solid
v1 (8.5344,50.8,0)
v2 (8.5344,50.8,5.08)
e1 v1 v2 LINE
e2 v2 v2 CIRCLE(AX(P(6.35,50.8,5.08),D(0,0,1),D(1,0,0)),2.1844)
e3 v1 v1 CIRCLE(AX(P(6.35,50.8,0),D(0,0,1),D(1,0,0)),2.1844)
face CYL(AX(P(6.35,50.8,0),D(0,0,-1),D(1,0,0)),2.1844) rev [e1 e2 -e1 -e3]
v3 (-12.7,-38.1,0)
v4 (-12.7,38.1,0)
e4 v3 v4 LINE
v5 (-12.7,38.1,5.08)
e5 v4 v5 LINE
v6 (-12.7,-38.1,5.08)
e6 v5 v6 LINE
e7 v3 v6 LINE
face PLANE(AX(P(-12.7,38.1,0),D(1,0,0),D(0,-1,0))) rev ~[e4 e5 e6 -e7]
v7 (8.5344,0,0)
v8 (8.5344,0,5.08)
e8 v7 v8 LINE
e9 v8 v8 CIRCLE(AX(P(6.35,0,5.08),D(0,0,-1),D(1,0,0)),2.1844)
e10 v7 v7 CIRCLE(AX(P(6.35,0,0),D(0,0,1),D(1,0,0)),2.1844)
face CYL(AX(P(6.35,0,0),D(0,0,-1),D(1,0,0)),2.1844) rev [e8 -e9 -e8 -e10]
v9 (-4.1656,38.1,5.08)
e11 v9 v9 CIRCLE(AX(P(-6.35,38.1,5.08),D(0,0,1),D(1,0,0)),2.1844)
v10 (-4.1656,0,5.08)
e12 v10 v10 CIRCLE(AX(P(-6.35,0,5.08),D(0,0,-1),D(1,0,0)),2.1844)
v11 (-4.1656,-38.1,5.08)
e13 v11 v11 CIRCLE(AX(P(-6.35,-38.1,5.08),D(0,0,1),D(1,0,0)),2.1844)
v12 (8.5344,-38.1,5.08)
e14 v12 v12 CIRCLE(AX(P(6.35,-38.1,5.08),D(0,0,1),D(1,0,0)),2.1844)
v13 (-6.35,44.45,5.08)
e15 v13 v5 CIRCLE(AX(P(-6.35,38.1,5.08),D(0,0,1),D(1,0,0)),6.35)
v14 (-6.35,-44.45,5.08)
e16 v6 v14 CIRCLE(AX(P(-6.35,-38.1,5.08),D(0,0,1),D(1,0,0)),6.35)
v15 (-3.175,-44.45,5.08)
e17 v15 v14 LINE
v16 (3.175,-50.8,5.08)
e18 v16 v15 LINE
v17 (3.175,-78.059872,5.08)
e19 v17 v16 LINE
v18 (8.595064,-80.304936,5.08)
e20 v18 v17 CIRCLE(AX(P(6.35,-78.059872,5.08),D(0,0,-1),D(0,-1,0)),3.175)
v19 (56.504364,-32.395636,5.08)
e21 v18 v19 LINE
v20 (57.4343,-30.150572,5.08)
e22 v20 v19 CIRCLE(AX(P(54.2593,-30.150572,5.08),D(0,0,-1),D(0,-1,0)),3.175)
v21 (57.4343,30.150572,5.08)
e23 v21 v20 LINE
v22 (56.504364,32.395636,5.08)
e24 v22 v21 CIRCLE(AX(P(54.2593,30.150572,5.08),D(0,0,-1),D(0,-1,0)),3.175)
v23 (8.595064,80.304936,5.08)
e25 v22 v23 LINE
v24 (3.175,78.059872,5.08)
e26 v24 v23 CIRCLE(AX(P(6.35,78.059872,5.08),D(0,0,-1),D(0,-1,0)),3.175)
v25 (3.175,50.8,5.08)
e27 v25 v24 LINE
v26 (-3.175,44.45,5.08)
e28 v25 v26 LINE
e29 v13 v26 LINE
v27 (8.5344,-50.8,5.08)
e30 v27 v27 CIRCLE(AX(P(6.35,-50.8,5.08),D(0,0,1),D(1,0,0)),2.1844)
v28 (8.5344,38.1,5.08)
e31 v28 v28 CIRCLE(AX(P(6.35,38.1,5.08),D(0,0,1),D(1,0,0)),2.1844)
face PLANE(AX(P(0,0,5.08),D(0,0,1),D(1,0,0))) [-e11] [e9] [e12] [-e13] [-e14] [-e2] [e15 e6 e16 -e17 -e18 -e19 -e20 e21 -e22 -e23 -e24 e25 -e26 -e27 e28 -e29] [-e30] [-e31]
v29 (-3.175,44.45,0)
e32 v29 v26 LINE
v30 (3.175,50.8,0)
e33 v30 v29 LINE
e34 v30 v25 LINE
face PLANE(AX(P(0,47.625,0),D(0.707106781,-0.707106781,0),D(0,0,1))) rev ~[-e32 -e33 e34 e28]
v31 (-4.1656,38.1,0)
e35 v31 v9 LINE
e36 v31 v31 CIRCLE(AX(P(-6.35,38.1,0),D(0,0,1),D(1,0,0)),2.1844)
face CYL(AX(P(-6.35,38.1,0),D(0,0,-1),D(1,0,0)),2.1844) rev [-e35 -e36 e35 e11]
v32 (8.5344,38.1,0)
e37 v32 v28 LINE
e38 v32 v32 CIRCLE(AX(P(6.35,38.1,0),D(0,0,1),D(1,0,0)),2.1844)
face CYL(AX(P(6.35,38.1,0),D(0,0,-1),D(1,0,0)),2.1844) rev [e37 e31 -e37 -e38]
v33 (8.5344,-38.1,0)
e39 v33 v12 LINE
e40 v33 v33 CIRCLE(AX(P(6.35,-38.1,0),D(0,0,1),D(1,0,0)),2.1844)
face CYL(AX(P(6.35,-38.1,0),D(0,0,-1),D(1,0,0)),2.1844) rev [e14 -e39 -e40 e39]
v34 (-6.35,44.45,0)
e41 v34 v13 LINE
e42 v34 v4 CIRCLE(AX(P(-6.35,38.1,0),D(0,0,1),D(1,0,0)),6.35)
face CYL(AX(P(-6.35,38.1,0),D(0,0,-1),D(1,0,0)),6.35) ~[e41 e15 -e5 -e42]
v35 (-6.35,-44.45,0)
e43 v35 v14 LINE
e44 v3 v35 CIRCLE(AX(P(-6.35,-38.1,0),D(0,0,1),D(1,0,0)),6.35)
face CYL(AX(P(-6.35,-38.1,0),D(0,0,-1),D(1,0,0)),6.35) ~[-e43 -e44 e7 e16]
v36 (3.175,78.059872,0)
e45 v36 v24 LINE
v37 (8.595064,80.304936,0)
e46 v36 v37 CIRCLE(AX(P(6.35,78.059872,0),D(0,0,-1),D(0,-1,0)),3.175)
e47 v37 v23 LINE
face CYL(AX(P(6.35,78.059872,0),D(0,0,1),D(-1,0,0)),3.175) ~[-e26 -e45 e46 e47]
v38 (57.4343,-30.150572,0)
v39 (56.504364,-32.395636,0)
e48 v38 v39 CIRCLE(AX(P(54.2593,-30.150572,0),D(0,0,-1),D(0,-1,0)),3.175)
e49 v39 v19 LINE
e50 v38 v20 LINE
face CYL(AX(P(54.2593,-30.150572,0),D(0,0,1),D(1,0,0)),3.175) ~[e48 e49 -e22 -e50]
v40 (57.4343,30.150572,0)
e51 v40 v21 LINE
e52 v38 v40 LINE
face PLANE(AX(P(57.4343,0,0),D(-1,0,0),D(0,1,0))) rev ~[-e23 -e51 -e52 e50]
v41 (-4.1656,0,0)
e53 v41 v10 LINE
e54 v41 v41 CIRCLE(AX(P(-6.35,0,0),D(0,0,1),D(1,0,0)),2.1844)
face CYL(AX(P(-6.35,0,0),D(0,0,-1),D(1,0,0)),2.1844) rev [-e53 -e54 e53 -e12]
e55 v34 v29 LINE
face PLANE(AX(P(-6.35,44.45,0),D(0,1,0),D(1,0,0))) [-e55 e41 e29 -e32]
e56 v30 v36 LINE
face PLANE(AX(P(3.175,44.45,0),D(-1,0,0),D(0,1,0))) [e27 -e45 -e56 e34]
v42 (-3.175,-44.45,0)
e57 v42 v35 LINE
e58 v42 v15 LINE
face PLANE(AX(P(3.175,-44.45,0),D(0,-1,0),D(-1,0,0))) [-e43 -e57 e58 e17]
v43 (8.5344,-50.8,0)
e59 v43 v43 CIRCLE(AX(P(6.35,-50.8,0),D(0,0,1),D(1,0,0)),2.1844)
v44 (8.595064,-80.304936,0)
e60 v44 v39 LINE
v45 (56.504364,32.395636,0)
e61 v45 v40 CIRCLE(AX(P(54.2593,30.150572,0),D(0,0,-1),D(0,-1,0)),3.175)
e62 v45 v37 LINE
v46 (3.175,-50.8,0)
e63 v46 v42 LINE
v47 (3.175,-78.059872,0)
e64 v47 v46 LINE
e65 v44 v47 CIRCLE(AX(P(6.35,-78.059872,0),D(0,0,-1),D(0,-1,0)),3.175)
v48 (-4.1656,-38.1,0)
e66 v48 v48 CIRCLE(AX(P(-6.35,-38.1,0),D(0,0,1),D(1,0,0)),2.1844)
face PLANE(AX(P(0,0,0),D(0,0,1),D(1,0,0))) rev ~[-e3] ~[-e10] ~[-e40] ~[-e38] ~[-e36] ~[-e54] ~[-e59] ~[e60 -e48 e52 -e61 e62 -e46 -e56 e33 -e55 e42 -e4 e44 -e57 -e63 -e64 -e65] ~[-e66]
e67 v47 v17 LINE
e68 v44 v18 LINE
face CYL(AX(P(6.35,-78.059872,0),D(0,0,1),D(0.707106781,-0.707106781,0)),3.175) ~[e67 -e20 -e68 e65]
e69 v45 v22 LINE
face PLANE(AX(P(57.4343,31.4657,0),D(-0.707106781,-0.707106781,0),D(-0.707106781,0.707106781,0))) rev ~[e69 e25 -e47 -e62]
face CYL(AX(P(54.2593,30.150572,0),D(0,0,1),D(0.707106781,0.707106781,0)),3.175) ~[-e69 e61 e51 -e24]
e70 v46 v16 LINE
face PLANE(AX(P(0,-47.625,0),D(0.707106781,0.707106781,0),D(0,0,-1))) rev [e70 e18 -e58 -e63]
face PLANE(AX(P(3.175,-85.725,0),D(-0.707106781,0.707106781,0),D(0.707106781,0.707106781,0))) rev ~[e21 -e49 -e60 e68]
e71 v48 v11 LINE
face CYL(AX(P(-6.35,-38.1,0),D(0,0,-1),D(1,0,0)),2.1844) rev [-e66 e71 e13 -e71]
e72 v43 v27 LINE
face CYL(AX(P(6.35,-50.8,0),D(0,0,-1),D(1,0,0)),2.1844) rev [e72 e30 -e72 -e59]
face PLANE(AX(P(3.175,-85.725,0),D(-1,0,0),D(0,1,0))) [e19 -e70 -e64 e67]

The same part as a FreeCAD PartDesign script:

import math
import FreeCAD as App
import Part
import Sketcher
Q = App.Units.Quantity


def edges_at(feature, points):
    """Names of the edges that pass closest to the given points."""
    edges = feature.Shape.Edges
    near = lambda p: min(range(len(edges)), key=lambda i: edges[i].distToShape(Part.Vertex(*p))[0])
    return sorted({f"Edge{near(p) + 1}" for p in points})

doc = App.newDocument("Part")
params = doc.addObject("Spreadsheet::Sheet", "Params")
for row, (alias, value) in enumerate([
    ("sketch1_radius", "0.25 in"),
    ("sketch1_height", "3 in"),
    ("sketch1_diameter", "0.172 in"),
    ("sketch1_height2", "1.625 in"),
    ("pad1_length", "0.2 in"),
    ("chamfer_size", "0.25 in"),
    ("fillet_radius", "0.125 in"),
], start=1):
    params.set(f"A{row}", alias)
    params.set(f"B{row}", "=" + value)
    params.setAlias(f"B{row}", alias)

body = doc.addObject("PartDesign::Body", "Body")

# Sketch on XY plane
sketch1 = doc.addObject("Sketcher::SketchObject", "Sketch")
body.addObject(sketch1)
sketch1.AttachmentSupport = (doc.XY_Plane, [""])
sketch1.MapMode = "FlatFace"
sketch1.addGeometry(Part.LineSegment(App.Vector(57.4343, 31.4657, 0), App.Vector(3.175, 85.725, 0)), False)
sketch1.addGeometry(Part.LineSegment(App.Vector(3.175, 85.725, 0), App.Vector(3.175, 44.45, 0)), False)
sketch1.addGeometry(Part.LineSegment(App.Vector(3.175, 44.45, 0), App.Vector(-6.35, 44.45, 0)), False)
sketch1.addGeometry(Part.ArcOfCircle(Part.Circle(App.Vector(-6.35, 38.1, 0), App.Vector(0, 0, 1), 6.35), math.radians(90), math.radians(180)), False)
sketch1.addGeometry(Part.LineSegment(App.Vector(-12.7, 38.1, 0), App.Vector(-12.7, -38.1, 0)), False)
sketch1.addGeometry(Part.ArcOfCircle(Part.Circle(App.Vector(-6.35, -38.1, 0), App.Vector(0, 0, 1), 6.35), math.radians(180), math.radians(270)), False)
sketch1.addGeometry(Part.LineSegment(App.Vector(-6.35, -44.45, 0), App.Vector(3.175, -44.45, 0)), False)
sketch1.addGeometry(Part.LineSegment(App.Vector(3.175, -44.45, 0), App.Vector(3.175, -85.725, 0)), False)
sketch1.addGeometry(Part.LineSegment(App.Vector(3.175, -85.725, 0), App.Vector(57.4343, -31.4657, 0)), False)
sketch1.addGeometry(Part.LineSegment(App.Vector(57.4343, -31.4657, 0), App.Vector(57.4343, 31.4657, 0)), False)
sketch1.addGeometry(Part.Circle(App.Vector(6.35, 0, 0), App.Vector(0, 0, 1), 2.1844), False)
sketch1.addGeometry(Part.Circle(App.Vector(-6.35, 0, 0), App.Vector(0, 0, 1), 2.1844), False)
sketch1.addGeometry(Part.Circle(App.Vector(6.35, 38.1, 0), App.Vector(0, 0, 1), 2.1844), False)
sketch1.addGeometry(Part.Circle(App.Vector(6.35, 50.8, 0), App.Vector(0, 0, 1), 2.1844), False)
sketch1.addGeometry(Part.Circle(App.Vector(6.35, -38.1, 0), App.Vector(0, 0, 1), 2.1844), False)
sketch1.addGeometry(Part.Circle(App.Vector(6.35, -50.8, 0), App.Vector(0, 0, 1), 2.1844), False)
sketch1.addGeometry(Part.Circle(App.Vector(-6.35, 38.1, 0), App.Vector(0, 0, 1), 2.1844), False)
sketch1.addGeometry(Part.Circle(App.Vector(-6.35, -38.1, 0), App.Vector(0, 0, 1), 2.1844), False)
sketch1.addConstraint(Sketcher.Constraint("Coincident", 0, 2, 1, 1))
sketch1.addConstraint(Sketcher.Constraint("Coincident", 1, 2, 2, 1))
sketch1.addConstraint(Sketcher.Constraint("Tangent", 2, 2, 3, 1))
sketch1.addConstraint(Sketcher.Constraint("Tangent", 3, 2, 4, 1))
sketch1.addConstraint(Sketcher.Constraint("Tangent", 4, 2, 5, 1))
sketch1.addConstraint(Sketcher.Constraint("Tangent", 5, 2, 6, 1))
sketch1.addConstraint(Sketcher.Constraint("Coincident", 6, 2, 7, 1))
sketch1.addConstraint(Sketcher.Constraint("Coincident", 7, 2, 8, 1))
sketch1.addConstraint(Sketcher.Constraint("Coincident", 8, 2, 9, 1))
sketch1.addConstraint(Sketcher.Constraint("Coincident", 9, 2, 0, 1))
sketch1.addConstraint(Sketcher.Constraint("Vertical", 1))
sketch1.addConstraint(Sketcher.Constraint("Horizontal", 2))
sketch1.addConstraint(Sketcher.Constraint("Vertical", 4))
sketch1.addConstraint(Sketcher.Constraint("Horizontal", 6))
sketch1.addConstraint(Sketcher.Constraint("Vertical", 7))
sketch1.addConstraint(Sketcher.Constraint("Vertical", 9))
sketch1.addConstraint(Sketcher.Constraint("Coincident", 16, 3, 3, 3))
sketch1.addConstraint(Sketcher.Constraint("Coincident", 17, 3, 5, 3))
sketch1.addConstraint(Sketcher.Constraint("Equal", 3, 5))
sketch1.addConstraint(Sketcher.Constraint("Equal", 10, 11))
sketch1.addConstraint(Sketcher.Constraint("Equal", 11, 12))
sketch1.addConstraint(Sketcher.Constraint("Equal", 12, 13))
sketch1.addConstraint(Sketcher.Constraint("Equal", 13, 14))
sketch1.addConstraint(Sketcher.Constraint("Equal", 14, 15))
sketch1.addConstraint(Sketcher.Constraint("Equal", 15, 16))
sketch1.addConstraint(Sketcher.Constraint("Equal", 16, 17))
sketch1.addConstraint(Sketcher.Constraint("Symmetric", 10, 3, 11, 3, -1, 1))
sketch1.addConstraint(Sketcher.Constraint("Symmetric", 5, 3, 12, 3, -1, 1))
sketch1.addConstraint(Sketcher.Constraint("Symmetric", 3, 3, 14, 3, -1, 1))
sketch1.addConstraint(Sketcher.Constraint("Symmetric", 13, 3, 15, 3, -1))
sketch1.addConstraint(Sketcher.Constraint("Symmetric", 1, 2, 6, 2, -1))
sketch1.addConstraint(Sketcher.Constraint("PointOnObject", 10, 3, -1))
sketch1.addConstraint(Sketcher.Constraint("Perpendicular", 0, 8))
sketch1.addConstraint(Sketcher.Constraint("Vertical", 5, 3, 11, 3))
sketch1.addConstraint(Sketcher.Constraint("Vertical", 12, 3, 13, 3))
sketch1.addConstraint(Sketcher.Constraint("Equal", 1, 7))
sketch1.addConstraint(Sketcher.Constraint("Equal", 0, 8))
sketch1.addConstraint(Sketcher.Constraint("Radius", 3, Q("0.25 in")))
sketch1.addConstraint(Sketcher.Constraint("DistanceX", 3, 2, -1, 1, Q("0.5 in")))
sketch1.addConstraint(Sketcher.Constraint("DistanceY", 12, 3, 13, 3, Q("0.5 in")))
sketch1.addConstraint(Sketcher.Constraint("DistanceY", 4, 2, 4, 1, Q("3 in")))
sketch1.addConstraint(Sketcher.Constraint("Diameter", 10, Q("0.172 in")))
sketch1.addConstraint(Sketcher.Constraint("DistanceX", -1, 1, 0, 2, Q("0.125 in")))
sketch1.addConstraint(Sketcher.Constraint("DistanceY", 1, 2, 1, 1, Q("1.625 in")))
sketch1.addConstraint(Sketcher.Constraint("DistanceY", 9, 1, 9, 2, 62.9314))
sketch1.setExpression("Constraints[37]", "Params.sketch1_radius")
sketch1.setExpression("Constraints[40]", "Params.sketch1_height")
sketch1.setExpression("Constraints[41]", "Params.sketch1_diameter")
sketch1.setExpression("Constraints[43]", "Params.sketch1_height2")
pad1 = doc.addObject("PartDesign::Pad", "Pad")
body.addObject(pad1)
pad1.Profile = sketch1
pad1.setExpression("Length", "Params.pad1_length")
doc.recompute()

chamfer = doc.addObject("PartDesign::Chamfer", "Chamfer")
body.addObject(chamfer)
chamfer.Base = (pad1, edges_at(pad1, [(3.175, 44.45, 2.54), (3.175, -44.45, 2.54)]))
chamfer.setExpression("Size", "Params.chamfer_size")
doc.recompute()

fillet = doc.addObject("PartDesign::Fillet", "Fillet")
body.addObject(fillet)
fillet.Base = (chamfer, edges_at(chamfer, [
    (3.175, 85.725, 2.54),
    (3.175, -85.725, 2.54),
    (57.434, 31.466, 2.54),
    (57.434, -31.466, 2.54),
]))
fillet.setExpression("Radius", "Params.fillet_radius")

doc.recompute()
